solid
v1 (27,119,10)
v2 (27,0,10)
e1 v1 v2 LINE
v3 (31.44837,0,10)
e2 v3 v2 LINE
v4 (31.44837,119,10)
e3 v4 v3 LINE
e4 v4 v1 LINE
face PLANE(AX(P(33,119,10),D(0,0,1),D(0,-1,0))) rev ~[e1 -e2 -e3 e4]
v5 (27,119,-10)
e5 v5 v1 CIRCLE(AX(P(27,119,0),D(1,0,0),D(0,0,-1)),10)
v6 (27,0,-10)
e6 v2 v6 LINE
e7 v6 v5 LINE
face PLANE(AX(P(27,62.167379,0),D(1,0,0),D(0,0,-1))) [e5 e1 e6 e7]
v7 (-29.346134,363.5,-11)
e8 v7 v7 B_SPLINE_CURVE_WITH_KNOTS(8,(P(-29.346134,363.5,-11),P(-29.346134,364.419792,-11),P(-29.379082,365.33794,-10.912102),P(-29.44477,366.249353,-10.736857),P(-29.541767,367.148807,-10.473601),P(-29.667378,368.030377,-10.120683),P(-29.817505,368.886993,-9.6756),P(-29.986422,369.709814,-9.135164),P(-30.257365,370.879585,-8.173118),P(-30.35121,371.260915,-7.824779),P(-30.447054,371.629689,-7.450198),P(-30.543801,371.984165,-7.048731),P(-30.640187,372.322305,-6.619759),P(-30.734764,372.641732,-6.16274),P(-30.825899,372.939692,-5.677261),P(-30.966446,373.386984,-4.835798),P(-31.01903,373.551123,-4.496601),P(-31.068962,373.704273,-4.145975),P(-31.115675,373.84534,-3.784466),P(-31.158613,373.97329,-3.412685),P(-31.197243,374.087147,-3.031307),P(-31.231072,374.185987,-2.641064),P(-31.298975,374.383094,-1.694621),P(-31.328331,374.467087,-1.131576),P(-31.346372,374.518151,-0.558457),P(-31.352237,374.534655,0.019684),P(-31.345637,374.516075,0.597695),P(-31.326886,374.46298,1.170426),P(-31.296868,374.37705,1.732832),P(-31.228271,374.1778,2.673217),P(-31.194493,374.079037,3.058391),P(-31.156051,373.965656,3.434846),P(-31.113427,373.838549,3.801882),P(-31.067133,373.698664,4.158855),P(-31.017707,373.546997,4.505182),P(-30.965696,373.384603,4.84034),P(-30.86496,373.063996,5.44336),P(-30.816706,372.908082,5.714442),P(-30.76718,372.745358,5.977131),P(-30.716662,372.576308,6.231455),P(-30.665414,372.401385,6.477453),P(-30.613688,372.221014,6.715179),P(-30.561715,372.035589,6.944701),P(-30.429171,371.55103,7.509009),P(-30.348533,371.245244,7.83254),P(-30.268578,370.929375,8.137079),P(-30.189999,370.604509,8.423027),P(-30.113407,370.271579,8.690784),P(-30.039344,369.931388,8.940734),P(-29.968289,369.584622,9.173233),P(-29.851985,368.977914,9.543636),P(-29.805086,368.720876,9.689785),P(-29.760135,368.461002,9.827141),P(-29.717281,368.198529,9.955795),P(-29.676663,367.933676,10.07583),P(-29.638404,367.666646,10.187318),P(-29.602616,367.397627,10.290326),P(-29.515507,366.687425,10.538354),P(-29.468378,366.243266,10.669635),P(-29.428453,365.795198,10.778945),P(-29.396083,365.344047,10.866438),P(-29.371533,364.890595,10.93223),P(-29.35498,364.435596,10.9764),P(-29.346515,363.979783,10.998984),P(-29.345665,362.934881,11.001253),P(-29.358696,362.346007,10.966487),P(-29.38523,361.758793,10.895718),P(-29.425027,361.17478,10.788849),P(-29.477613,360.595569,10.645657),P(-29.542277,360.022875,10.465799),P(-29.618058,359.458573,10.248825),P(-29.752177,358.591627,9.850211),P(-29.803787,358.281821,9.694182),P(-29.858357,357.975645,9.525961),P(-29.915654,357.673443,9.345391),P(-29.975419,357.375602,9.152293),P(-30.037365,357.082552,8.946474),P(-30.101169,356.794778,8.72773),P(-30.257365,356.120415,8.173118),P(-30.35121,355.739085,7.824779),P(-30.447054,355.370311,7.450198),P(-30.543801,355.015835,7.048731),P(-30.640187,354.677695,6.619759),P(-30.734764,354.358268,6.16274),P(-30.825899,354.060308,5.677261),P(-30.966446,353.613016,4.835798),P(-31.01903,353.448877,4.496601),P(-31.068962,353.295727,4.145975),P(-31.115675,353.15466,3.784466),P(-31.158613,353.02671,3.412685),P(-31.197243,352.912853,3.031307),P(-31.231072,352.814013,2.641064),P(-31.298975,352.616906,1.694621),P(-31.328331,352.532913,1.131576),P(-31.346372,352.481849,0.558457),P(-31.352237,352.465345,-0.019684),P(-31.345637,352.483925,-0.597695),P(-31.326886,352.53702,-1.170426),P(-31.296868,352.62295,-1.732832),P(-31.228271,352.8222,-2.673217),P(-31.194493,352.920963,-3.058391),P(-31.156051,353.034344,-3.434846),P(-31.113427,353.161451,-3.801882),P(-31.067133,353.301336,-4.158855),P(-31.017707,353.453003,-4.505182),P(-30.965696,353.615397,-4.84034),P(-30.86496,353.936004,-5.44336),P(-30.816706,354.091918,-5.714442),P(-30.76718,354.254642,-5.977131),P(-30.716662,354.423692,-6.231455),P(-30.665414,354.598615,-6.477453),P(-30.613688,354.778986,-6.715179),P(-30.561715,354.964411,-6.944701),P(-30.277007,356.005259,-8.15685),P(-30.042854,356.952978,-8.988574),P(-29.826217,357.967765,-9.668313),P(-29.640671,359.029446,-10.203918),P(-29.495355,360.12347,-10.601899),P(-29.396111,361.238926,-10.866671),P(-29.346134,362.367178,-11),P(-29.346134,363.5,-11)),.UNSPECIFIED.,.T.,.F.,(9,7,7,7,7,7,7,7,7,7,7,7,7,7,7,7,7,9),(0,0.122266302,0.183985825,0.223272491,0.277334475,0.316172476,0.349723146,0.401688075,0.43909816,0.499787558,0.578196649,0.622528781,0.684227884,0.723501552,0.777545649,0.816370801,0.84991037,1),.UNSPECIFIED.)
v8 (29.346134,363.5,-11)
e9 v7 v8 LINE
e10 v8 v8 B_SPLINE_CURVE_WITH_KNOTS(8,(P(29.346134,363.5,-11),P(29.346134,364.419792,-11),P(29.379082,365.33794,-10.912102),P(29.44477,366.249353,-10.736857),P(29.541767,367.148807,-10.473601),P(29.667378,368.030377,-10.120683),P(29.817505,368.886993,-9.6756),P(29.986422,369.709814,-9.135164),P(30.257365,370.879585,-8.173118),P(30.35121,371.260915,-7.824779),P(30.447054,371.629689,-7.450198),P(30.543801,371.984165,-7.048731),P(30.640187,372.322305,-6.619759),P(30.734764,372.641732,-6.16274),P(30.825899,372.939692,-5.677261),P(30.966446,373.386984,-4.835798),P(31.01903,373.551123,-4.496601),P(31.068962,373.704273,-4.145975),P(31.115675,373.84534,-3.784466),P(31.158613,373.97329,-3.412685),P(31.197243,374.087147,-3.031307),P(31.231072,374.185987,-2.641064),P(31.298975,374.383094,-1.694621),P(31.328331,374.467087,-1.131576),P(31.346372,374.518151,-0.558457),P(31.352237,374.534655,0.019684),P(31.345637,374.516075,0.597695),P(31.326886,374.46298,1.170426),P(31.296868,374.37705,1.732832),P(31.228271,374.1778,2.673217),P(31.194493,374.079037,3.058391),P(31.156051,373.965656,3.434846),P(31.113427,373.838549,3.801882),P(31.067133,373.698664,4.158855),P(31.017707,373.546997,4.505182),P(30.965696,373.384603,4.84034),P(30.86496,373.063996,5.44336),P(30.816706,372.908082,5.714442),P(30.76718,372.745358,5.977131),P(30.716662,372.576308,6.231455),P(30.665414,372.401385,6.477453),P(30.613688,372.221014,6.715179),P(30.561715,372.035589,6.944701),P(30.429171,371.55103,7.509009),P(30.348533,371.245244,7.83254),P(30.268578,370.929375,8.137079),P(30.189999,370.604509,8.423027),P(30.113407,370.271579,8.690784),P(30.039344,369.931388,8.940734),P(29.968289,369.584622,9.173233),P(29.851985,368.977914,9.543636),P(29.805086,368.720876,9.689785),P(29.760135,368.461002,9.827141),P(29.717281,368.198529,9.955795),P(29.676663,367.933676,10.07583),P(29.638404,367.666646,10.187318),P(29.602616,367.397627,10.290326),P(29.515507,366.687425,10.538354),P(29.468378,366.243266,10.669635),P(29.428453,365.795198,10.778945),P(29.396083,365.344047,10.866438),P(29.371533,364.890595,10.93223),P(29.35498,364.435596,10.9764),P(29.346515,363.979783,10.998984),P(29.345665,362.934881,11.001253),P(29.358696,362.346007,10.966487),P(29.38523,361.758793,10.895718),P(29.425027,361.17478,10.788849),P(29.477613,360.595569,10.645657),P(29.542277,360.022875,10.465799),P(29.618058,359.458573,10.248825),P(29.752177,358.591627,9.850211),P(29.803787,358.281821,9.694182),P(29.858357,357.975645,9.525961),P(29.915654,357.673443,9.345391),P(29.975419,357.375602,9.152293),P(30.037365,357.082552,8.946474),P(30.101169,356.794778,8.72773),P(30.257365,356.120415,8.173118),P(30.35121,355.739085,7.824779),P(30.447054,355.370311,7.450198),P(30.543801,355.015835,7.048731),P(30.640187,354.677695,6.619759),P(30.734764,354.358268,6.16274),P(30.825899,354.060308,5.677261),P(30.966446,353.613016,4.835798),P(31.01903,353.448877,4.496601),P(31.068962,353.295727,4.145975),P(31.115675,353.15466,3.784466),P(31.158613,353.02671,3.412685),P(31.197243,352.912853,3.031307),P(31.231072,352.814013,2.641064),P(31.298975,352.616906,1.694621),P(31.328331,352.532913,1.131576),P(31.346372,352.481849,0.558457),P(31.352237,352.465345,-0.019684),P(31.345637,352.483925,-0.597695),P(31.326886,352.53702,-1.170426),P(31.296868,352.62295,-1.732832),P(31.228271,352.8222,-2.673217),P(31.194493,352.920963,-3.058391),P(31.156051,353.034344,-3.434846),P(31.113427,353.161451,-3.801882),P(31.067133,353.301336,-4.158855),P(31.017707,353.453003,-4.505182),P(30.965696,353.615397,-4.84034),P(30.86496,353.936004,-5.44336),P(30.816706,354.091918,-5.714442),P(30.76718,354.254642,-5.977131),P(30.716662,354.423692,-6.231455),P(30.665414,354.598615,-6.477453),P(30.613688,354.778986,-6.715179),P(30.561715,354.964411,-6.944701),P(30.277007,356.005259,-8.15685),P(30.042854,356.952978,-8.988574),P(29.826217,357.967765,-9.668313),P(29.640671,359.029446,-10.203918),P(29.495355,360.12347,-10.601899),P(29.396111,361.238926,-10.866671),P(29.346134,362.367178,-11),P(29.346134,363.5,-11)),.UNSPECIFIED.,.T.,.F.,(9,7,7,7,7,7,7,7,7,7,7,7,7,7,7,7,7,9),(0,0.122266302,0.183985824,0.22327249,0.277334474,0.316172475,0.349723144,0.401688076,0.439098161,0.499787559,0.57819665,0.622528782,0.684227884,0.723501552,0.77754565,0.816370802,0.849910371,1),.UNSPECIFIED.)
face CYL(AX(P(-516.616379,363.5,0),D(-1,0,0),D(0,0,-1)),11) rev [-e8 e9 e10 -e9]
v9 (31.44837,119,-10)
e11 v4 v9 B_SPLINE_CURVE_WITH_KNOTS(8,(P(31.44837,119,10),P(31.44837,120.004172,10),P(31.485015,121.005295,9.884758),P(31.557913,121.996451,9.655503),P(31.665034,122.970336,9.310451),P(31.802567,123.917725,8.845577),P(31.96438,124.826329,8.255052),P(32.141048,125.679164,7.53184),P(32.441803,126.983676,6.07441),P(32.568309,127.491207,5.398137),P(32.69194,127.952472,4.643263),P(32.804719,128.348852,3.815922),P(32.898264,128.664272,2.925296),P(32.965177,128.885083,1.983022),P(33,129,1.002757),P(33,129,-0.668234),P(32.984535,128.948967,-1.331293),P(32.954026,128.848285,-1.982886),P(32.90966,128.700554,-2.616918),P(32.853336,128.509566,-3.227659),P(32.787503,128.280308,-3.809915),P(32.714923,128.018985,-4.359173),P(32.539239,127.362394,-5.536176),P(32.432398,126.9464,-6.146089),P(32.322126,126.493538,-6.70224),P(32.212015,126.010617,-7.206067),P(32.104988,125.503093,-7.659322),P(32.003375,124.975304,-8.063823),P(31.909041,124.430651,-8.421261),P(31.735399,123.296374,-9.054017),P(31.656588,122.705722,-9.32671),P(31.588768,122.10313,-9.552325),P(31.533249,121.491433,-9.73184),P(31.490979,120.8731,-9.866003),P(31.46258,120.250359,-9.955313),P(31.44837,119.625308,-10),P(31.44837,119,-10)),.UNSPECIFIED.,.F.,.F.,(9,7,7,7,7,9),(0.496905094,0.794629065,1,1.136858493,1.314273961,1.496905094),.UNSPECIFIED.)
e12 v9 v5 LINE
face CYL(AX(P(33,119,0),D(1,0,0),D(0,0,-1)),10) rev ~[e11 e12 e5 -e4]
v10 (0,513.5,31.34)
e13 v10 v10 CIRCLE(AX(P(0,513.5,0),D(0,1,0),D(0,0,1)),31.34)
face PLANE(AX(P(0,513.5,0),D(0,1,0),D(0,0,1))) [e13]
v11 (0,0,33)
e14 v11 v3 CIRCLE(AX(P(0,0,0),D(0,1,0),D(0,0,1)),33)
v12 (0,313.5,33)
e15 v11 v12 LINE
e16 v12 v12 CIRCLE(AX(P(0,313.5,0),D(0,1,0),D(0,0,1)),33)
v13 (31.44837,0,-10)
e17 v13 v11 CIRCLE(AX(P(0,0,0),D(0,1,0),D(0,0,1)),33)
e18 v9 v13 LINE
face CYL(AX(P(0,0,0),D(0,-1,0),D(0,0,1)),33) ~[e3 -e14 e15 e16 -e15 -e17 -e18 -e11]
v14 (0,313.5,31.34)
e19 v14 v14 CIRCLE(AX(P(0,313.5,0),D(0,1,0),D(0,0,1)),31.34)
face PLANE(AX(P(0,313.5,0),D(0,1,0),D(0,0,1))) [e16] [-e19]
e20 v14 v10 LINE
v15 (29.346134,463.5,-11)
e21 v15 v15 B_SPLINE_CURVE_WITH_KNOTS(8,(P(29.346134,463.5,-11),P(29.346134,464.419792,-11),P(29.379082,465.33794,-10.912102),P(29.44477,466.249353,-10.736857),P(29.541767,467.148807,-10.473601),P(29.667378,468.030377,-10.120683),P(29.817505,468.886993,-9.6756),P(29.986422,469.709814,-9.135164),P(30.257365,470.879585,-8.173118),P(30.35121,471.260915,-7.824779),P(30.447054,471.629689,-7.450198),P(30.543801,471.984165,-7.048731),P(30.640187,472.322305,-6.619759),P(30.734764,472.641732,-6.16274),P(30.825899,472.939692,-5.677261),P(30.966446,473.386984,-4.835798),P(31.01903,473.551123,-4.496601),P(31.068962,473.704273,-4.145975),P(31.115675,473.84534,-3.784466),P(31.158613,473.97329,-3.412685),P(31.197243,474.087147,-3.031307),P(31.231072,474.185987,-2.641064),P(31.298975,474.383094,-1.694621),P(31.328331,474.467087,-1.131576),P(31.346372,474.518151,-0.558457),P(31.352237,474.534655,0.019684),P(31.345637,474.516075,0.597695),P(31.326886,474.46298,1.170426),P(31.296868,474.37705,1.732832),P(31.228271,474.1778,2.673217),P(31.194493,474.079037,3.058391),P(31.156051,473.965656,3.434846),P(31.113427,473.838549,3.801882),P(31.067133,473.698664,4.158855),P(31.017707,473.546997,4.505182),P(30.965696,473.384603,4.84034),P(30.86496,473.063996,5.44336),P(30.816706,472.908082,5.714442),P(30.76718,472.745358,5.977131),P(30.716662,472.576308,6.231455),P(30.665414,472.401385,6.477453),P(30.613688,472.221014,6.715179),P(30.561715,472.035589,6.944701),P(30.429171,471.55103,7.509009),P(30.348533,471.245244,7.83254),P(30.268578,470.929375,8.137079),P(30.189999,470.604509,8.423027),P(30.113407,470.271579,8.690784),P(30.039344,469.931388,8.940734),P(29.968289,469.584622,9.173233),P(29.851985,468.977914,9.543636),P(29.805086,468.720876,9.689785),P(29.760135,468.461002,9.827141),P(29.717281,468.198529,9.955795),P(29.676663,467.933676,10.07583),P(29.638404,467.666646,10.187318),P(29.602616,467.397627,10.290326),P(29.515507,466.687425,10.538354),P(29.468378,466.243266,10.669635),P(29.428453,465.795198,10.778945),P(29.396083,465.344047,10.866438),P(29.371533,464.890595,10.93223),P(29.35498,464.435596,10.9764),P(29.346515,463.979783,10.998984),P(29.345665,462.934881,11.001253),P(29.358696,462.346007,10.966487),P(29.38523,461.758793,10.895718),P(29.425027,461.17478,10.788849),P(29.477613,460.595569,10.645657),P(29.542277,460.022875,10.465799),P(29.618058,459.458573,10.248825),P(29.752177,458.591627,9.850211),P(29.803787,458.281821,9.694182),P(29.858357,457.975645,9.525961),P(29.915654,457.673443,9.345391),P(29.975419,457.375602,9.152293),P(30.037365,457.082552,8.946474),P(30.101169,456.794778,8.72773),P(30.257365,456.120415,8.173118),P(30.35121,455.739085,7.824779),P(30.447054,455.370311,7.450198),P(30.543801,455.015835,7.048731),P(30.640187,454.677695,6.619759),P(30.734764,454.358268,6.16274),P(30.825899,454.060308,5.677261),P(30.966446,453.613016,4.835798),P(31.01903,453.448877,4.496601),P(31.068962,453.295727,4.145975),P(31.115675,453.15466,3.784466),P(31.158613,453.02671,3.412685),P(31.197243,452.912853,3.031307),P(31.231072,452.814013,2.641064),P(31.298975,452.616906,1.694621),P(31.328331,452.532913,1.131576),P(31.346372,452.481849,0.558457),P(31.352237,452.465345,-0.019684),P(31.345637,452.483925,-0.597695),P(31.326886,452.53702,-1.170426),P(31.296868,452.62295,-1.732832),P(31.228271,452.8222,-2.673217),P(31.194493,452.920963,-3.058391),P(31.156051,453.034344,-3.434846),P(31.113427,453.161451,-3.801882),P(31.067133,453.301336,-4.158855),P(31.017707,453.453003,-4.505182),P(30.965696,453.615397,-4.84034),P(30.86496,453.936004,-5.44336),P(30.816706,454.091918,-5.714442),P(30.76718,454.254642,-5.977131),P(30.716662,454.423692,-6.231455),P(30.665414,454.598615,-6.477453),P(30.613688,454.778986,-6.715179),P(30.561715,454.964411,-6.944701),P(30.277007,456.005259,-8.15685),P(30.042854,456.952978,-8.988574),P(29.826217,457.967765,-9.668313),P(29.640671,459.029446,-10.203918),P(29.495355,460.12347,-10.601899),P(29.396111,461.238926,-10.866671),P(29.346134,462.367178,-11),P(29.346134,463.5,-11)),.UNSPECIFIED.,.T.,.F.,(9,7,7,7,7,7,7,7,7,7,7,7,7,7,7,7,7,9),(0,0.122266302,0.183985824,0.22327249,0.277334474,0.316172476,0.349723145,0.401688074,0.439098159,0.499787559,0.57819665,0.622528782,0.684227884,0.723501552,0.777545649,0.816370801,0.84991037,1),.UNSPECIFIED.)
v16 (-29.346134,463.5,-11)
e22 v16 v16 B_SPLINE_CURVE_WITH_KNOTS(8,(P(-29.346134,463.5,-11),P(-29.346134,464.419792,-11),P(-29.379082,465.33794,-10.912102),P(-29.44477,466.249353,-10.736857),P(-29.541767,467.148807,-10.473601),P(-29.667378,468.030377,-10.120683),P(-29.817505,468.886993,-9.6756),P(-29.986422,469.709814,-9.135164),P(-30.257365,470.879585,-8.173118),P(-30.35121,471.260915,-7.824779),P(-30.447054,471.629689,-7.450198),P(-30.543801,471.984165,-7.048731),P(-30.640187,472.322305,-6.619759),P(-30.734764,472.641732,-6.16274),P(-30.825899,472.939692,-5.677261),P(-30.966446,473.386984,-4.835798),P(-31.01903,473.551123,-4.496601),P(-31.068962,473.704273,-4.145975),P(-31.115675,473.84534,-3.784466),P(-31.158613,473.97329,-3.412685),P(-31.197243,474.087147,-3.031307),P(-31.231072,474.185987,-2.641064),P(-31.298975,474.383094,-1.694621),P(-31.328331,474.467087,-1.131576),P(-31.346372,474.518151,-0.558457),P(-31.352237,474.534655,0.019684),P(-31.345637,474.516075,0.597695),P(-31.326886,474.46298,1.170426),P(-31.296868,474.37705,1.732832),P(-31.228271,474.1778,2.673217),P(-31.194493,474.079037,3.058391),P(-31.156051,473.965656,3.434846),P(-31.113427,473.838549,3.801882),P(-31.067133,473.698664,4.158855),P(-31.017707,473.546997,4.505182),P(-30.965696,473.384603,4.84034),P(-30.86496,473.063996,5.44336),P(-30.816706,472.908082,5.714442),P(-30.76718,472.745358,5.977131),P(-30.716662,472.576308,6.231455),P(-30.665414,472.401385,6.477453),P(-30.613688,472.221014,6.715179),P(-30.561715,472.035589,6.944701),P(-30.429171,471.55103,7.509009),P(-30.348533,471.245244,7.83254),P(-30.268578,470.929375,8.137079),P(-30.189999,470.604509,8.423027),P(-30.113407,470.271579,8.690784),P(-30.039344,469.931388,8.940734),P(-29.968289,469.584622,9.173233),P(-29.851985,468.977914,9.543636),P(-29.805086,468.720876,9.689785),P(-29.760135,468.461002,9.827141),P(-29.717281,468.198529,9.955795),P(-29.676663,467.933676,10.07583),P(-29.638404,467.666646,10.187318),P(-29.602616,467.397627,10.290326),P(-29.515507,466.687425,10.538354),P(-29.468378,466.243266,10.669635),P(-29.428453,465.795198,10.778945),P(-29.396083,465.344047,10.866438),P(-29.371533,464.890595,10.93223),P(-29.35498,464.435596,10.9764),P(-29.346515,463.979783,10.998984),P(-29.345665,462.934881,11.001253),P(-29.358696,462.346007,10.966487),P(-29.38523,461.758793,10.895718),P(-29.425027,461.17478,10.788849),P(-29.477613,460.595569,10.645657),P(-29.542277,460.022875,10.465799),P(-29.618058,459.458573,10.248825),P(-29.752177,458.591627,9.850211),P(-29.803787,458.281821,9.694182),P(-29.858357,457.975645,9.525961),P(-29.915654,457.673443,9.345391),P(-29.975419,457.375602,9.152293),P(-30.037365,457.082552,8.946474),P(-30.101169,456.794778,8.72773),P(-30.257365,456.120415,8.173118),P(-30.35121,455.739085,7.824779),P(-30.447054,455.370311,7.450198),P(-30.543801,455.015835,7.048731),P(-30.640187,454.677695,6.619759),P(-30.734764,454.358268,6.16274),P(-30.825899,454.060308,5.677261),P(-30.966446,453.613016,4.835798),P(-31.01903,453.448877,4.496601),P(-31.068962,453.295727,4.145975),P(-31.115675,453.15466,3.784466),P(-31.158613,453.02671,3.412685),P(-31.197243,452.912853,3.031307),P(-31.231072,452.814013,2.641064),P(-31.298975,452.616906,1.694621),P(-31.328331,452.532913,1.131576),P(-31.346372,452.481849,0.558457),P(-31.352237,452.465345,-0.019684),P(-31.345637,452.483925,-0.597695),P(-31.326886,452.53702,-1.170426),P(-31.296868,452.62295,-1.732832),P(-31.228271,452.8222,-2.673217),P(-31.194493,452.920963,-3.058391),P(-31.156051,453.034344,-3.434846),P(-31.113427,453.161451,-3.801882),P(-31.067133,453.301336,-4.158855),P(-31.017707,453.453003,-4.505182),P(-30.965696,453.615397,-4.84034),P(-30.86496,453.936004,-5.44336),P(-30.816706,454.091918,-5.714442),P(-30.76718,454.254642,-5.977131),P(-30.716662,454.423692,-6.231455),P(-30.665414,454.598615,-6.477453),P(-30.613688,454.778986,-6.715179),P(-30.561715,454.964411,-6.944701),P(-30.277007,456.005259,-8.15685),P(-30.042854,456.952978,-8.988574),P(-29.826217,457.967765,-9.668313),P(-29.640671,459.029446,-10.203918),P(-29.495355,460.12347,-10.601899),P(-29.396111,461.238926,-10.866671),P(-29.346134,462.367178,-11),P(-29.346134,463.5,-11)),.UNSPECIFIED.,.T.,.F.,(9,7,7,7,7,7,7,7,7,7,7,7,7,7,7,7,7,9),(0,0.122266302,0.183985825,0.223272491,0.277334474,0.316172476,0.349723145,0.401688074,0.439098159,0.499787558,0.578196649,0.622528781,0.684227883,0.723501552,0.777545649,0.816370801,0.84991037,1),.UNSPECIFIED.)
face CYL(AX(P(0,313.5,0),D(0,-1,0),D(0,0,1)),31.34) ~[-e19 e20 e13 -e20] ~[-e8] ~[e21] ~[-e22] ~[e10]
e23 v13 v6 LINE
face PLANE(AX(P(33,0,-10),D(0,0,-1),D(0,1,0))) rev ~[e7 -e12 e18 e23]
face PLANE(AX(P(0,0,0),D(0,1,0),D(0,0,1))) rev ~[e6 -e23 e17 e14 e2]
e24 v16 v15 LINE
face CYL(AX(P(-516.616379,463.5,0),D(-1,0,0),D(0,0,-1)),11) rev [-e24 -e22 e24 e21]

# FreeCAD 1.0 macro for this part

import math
import FreeCAD as App
import Part
import Sketcher

doc = App.newDocument("Part")
body = doc.addObject("PartDesign::Body", "Body")

sketch1 = body.newObject("Sketcher::SketchObject", "Sketch")
sketch1.AttachmentSupport = (doc.getObject("XZ_Plane"), [""])
sketch1.MapMode = "FlatFace"
sketch1.addGeometry(Part.Circle(App.Vector(0, 0, 0), App.Vector(0, 0, 1), 33), False)
sketch1.addConstraint([
    Sketcher.Constraint("Coincident", 0, 3, -1, 1),
    Sketcher.Constraint("Diameter", 0, 66.0),
])
pad1 = body.newObject("PartDesign::Pad", "Pad")
pad1.Profile = sketch1
pad1.Length = 313.5
pad1.Reversed = True

sketch2 = body.newObject("Sketcher::SketchObject", "Sketch001")
sketch2.AttachmentSupport = (doc.getObject("XZ_Plane"), [""])
sketch2.MapMode = "FlatFace"
sketch2.AttachmentOffset = App.Placement(App.Vector(0, 0, -313.5), App.Rotation())
sketch2.addGeometry(Part.Circle(App.Vector(0, 0, 0), App.Vector(0, 0, 1), 31), False)
sketch2.addConstraint([
    Sketcher.Constraint("Coincident", 0, 3, -1, 1),
    Sketcher.Constraint("Diameter", 0, 62.68),
])
pad2 = body.newObject("PartDesign::Pad", "Pad001")
pad2.Profile = sketch2
pad2.Length = 200
pad2.Reversed = True

sketch3 = body.newObject("Sketcher::SketchObject", "Sketch002")
sketch3.AttachmentSupport = (doc.getObject("YZ_Plane"), [""])
sketch3.MapMode = "FlatFace"
sketch3.AttachmentOffset = App.Placement(App.Vector(0, 0, 33), App.Rotation())
sketch3.addGeometry([
    Part.LineSegment(App.Vector(119, 10, 0), App.Vector(0, 10, 0)),
    Part.LineSegment(App.Vector(0, 10, 0), App.Vector(0, -10, 0)),
    Part.LineSegment(App.Vector(0, -10, 0), App.Vector(119, -10, 0)),
    Part.ArcOfCircle(Part.Circle(App.Vector(119, 0, 0), App.Vector(0, 0, 1), 10), math.radians(-90), math.radians(90)),
], False)
sketch3.addConstraint([
    Sketcher.Constraint("Coincident", 0, 2, 1, 1),
    Sketcher.Constraint("Coincident", 1, 2, 2, 1),
    Sketcher.Constraint("Tangent", 2, 2, 3, 1),
    Sketcher.Constraint("Tangent", 3, 2, 0, 1),
    Sketcher.Constraint("Horizontal", 0),
    Sketcher.Constraint("Vertical", 1),
    Sketcher.Constraint("Horizontal", 2),
    Sketcher.Constraint("Symmetric", 0, 2, 1, 2, -1, 1),
    Sketcher.Constraint("Radius", 3, 10.0),
    Sketcher.Constraint("DistanceX", 0, 2, 0, 1, 119.0),
])
pocket1 = body.newObject("PartDesign::Pocket", "Pocket")
pocket1.Profile = sketch3
pocket1.Length = 6

sketch4 = body.newObject("Sketcher::SketchObject", "Sketch003")
sketch4.AttachmentSupport = (doc.getObject("YZ_Plane"), [""])
sketch4.MapMode = "FlatFace"
sketch4.addGeometry([
    Part.Circle(App.Vector(464, 0, 0), App.Vector(0, 0, 1), 11),
    Part.Circle(App.Vector(364, 0, 0), App.Vector(0, 0, 1), 11),
], False)
sketch4.addConstraint([
    Sketcher.Constraint("Equal", 0, 1),
    Sketcher.Constraint("PointOnObject", 0, 3, -1),
    Sketcher.Constraint("PointOnObject", 1, 3, -1),
    Sketcher.Constraint("Diameter", 0, 22.0),
    Sketcher.Constraint("DistanceX", 1, 3, 0, 3, 100.0),
    Sketcher.Constraint("DistanceX", -1, 1, 0, 3, 463.5),
])
pocket2 = body.newObject("PartDesign::Pocket", "Pocket001")
pocket2.Profile = sketch4
pocket2.Type = "ThroughAll"
pocket2.Midplane = True

doc.recompute()
